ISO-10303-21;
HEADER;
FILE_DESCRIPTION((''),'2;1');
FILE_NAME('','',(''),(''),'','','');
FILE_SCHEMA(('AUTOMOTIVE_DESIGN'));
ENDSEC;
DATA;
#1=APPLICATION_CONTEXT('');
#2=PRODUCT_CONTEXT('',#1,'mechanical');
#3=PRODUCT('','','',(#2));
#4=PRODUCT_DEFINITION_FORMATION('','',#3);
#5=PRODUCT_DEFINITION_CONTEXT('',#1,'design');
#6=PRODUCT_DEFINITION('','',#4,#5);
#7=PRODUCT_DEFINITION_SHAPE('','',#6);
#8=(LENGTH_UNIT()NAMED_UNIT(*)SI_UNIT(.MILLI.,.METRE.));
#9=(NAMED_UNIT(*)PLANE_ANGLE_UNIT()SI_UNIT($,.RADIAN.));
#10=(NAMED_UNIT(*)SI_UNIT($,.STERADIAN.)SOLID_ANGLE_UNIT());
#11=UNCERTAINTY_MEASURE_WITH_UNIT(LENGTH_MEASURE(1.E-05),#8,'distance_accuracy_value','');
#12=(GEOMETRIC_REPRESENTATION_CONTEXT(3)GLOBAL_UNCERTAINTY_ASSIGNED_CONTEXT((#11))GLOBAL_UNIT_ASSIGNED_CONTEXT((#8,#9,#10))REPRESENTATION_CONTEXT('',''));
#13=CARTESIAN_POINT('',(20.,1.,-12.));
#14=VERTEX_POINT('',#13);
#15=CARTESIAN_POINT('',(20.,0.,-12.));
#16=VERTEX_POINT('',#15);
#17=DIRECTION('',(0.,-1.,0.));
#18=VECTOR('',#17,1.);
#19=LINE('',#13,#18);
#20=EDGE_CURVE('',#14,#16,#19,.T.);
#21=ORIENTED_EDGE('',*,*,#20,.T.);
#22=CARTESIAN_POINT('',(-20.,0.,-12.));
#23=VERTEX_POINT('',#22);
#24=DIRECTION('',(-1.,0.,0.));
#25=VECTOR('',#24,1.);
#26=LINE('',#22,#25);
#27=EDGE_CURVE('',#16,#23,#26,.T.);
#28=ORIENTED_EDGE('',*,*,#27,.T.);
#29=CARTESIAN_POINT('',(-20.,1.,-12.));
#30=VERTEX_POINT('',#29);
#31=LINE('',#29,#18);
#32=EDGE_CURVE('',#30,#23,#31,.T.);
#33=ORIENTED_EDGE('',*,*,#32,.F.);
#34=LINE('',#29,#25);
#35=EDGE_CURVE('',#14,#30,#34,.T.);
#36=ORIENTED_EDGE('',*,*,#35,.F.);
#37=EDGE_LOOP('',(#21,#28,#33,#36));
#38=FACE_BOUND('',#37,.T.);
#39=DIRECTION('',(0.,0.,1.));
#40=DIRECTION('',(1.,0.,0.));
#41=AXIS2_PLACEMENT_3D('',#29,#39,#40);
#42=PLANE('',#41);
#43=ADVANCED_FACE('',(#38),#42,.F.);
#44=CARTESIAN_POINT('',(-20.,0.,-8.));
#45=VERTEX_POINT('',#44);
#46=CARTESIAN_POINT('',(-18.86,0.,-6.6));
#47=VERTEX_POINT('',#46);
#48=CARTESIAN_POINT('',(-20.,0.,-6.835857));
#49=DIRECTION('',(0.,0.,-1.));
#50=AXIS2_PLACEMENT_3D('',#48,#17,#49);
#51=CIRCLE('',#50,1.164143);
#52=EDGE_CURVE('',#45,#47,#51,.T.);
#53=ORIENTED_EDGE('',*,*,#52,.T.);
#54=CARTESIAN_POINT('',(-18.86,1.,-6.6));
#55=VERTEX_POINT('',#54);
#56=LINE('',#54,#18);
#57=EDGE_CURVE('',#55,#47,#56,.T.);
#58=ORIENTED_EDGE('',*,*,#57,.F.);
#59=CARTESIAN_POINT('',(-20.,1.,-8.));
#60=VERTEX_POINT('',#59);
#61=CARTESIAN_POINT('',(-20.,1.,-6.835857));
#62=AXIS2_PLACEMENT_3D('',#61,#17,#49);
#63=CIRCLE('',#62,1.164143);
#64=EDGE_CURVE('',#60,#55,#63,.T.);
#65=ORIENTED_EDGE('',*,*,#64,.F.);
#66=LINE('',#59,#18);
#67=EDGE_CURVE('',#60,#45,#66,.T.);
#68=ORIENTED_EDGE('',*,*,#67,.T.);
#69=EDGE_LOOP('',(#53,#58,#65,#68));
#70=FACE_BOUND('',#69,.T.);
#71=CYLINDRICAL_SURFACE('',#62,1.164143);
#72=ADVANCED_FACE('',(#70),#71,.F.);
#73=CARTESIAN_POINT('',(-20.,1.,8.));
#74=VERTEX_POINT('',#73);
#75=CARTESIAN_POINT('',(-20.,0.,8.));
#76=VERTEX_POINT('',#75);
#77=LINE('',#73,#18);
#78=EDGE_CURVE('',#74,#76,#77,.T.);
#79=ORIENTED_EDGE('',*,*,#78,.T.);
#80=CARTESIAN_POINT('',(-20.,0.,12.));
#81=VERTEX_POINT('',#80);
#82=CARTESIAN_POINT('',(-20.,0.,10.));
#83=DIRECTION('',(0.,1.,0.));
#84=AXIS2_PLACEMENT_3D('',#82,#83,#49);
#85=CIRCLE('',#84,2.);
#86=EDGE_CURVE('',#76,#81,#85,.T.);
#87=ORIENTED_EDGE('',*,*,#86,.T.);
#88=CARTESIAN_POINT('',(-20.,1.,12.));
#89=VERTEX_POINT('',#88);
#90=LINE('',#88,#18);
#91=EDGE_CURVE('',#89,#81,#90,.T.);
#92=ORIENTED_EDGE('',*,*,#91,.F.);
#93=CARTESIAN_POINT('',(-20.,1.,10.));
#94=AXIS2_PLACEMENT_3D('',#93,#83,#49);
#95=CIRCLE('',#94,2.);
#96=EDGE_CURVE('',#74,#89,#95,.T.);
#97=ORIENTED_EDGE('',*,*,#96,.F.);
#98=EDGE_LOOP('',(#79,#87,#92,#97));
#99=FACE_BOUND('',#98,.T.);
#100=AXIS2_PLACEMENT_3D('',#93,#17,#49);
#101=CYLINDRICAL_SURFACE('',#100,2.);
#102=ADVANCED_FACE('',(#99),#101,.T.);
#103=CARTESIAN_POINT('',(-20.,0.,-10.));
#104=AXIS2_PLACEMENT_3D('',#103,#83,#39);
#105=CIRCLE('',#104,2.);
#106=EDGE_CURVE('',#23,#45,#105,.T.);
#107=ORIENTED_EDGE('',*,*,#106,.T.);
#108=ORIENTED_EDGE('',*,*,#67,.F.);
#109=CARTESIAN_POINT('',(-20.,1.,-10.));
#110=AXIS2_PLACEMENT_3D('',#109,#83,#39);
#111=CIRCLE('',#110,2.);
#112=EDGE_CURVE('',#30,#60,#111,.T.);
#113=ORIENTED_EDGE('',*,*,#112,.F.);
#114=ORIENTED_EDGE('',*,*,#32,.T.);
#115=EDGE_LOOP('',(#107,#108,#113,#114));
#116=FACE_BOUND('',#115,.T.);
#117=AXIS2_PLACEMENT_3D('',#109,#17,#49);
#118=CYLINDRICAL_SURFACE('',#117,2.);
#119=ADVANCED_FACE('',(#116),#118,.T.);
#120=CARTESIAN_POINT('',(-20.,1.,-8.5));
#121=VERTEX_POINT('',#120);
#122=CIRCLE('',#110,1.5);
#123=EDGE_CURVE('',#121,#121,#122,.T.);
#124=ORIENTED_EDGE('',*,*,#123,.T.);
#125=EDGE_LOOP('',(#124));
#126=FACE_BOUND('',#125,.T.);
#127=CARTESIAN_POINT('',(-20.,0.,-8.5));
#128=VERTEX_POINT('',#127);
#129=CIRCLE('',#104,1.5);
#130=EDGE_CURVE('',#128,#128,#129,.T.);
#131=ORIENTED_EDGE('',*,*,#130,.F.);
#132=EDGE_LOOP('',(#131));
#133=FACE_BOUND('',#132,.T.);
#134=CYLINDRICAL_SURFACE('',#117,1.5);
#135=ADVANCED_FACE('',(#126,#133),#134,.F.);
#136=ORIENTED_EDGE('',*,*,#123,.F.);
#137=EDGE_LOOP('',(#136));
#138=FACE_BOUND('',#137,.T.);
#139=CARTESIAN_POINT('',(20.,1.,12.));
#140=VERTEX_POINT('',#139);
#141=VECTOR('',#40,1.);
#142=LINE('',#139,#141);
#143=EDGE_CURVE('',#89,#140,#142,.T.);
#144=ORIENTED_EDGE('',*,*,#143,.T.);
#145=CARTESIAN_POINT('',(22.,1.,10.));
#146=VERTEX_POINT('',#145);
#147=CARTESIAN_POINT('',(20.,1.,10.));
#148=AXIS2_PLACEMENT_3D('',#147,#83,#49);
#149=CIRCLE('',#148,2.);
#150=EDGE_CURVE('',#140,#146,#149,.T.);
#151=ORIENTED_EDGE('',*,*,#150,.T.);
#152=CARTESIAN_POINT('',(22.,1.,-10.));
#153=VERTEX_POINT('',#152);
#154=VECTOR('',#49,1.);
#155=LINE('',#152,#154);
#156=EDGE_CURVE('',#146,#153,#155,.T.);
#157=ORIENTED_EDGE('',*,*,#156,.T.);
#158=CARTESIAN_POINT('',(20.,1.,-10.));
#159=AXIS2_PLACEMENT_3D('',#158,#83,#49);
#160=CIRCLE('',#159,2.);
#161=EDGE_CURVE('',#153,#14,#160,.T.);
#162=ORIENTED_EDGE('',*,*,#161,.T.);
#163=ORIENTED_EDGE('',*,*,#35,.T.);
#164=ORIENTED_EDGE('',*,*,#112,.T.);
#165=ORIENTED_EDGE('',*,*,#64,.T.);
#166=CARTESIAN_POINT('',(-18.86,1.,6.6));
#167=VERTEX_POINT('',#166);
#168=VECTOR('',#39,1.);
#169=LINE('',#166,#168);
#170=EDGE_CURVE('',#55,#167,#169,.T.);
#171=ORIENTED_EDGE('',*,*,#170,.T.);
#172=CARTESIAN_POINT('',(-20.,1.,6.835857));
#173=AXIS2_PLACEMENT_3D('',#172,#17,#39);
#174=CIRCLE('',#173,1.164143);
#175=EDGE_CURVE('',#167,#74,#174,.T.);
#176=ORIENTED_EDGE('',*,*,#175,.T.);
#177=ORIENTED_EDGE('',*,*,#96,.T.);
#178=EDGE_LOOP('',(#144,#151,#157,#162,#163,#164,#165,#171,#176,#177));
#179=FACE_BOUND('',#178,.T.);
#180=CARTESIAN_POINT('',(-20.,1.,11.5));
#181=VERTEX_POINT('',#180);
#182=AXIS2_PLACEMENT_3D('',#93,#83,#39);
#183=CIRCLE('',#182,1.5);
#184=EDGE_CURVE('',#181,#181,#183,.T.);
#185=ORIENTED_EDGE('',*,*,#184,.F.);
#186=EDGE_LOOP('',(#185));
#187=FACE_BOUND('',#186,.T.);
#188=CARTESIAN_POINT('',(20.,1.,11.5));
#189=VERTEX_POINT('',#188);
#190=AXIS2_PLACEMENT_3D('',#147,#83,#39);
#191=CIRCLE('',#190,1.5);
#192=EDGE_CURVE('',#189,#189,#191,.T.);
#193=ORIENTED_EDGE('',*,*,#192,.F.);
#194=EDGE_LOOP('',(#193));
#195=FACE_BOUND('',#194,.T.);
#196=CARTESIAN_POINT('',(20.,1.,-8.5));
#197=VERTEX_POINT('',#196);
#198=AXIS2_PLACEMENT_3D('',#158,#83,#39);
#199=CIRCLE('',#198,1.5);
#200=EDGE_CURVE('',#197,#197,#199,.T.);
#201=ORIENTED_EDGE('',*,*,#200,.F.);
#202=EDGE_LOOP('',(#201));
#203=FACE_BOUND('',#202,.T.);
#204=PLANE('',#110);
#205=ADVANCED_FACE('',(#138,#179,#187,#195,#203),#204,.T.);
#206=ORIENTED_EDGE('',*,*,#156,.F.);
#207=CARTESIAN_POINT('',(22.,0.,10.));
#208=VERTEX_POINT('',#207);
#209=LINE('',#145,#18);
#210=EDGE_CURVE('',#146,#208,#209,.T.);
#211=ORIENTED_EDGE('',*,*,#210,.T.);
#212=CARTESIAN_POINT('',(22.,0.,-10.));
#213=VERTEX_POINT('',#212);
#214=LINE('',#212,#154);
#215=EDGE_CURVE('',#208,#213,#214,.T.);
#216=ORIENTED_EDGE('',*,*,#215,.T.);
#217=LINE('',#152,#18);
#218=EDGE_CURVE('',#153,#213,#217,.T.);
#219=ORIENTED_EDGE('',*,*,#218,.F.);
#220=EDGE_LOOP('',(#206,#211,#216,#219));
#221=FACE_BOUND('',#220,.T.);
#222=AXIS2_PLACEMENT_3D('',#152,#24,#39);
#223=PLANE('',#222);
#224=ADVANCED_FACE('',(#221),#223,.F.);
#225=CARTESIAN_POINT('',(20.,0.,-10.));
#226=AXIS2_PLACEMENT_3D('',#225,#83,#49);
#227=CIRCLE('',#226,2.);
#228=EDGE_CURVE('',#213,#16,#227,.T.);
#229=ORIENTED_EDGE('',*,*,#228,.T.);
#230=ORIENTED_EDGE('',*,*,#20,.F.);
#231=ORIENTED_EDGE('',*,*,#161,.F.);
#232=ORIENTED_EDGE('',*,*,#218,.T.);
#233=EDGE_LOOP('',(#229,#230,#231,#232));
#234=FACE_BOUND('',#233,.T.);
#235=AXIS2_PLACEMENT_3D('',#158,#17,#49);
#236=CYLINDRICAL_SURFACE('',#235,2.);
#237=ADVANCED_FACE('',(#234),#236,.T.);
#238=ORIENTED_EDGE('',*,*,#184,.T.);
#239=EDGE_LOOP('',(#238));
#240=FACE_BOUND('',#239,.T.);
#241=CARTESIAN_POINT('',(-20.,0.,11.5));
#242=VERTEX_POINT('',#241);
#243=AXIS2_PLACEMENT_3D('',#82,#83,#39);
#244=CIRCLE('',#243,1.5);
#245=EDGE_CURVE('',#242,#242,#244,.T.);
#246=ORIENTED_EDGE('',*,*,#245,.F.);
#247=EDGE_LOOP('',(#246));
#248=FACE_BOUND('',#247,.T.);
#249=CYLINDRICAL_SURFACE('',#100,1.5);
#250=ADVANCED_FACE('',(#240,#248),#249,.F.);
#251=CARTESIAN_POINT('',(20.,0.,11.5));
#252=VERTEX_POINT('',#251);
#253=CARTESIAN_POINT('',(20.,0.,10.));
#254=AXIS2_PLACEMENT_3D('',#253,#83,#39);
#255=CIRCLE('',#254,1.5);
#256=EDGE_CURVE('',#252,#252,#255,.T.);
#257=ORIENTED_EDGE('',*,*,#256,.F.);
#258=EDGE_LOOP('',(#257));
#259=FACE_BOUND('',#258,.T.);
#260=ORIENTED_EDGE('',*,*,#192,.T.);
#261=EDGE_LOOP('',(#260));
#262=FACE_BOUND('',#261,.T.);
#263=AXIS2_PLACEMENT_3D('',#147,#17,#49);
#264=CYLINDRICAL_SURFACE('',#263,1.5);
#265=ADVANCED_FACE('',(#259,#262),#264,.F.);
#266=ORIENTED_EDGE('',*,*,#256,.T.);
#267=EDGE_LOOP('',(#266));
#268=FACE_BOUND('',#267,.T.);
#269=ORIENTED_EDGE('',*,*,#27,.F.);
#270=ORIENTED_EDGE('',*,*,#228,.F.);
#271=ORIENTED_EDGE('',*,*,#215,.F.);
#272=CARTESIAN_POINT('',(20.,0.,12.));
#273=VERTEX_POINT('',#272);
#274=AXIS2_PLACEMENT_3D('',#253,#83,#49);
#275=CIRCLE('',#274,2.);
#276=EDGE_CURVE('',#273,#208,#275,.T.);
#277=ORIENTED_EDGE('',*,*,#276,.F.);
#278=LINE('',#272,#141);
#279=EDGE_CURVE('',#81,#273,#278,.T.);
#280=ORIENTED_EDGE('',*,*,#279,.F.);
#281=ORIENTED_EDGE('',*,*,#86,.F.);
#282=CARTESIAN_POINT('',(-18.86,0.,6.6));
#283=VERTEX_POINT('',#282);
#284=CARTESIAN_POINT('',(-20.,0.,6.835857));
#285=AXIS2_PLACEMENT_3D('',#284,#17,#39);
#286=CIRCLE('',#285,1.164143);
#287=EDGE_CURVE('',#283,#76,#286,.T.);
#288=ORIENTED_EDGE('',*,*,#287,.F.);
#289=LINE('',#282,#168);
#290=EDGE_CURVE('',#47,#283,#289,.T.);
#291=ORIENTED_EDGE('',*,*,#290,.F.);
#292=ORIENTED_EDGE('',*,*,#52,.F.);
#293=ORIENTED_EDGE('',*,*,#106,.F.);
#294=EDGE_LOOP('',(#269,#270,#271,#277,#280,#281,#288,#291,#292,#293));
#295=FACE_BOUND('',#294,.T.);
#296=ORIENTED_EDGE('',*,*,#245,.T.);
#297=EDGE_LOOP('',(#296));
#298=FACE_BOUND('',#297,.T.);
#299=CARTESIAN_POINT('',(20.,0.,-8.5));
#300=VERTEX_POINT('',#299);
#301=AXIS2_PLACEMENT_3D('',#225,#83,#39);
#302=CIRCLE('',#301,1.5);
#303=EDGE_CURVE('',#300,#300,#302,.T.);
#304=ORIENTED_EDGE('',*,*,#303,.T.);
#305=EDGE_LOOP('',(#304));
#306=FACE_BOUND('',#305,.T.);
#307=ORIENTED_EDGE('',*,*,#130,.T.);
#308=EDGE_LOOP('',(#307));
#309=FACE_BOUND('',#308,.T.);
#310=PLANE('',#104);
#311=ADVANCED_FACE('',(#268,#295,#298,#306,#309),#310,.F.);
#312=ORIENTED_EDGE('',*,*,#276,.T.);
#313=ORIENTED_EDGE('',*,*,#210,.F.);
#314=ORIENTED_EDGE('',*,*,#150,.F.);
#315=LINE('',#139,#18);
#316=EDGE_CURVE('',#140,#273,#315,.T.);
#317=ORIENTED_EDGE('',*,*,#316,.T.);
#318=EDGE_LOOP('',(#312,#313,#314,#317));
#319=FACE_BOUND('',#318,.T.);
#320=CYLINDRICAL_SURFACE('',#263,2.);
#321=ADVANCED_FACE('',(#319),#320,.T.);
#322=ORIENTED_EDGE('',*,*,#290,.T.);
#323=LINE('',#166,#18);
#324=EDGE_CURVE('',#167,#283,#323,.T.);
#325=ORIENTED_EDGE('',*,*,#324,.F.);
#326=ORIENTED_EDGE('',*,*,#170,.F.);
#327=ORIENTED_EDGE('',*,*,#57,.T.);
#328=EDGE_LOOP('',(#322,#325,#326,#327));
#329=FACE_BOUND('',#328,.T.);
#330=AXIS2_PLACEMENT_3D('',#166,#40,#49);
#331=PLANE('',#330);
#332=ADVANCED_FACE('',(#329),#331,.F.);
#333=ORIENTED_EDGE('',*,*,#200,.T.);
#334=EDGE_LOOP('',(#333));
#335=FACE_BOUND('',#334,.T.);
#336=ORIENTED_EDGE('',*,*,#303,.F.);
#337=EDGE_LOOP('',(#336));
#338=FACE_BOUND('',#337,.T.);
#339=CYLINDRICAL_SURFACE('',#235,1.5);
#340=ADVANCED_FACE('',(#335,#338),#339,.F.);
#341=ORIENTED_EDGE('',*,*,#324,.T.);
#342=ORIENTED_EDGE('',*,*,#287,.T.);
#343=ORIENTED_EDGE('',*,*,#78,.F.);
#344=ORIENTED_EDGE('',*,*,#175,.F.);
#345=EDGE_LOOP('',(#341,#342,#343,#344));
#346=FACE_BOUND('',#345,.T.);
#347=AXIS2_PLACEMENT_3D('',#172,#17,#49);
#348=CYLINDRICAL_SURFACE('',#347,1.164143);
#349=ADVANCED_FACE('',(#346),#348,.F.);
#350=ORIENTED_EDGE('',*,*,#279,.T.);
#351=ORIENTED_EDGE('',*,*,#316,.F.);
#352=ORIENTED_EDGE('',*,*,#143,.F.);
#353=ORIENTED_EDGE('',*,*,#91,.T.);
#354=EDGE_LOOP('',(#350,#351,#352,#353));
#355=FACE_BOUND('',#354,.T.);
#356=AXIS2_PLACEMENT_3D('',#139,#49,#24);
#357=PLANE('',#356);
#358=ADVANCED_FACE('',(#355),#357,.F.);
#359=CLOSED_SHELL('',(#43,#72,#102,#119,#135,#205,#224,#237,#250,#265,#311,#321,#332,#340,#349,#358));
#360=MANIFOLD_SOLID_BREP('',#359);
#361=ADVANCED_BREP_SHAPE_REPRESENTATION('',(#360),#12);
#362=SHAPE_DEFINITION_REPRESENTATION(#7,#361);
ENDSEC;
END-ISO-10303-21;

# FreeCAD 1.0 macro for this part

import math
import FreeCAD as App
import Part
import Sketcher

V = App.Vector
Q = App.Units.Quantity

doc = App.newDocument("Part")
body = doc.addObject("PartDesign::Body", "Body")

sketch1 = body.newObject("Sketcher::SketchObject", "Sketch")
sketch1.AttachmentSupport = (doc.getObject("XZ_Plane"), [""])
sketch1.MapMode = "FlatFace"
sketch1.addGeometry([
    Part.LineSegment(V(20, -12, 0), V(-20, -12, 0)),
    Part.ArcOfCircle(Part.Circle(V(-20, -10, 0), V(0, 0, 1), 2), math.radians(90), math.radians(270)),
    Part.ArcOfCircle(Part.Circle(V(-20, -6.8, 0), V(0, 0, 1), 1.2), math.radians(-90), math.radians(12)),
    Part.LineSegment(V(-18.9, -6.6, 0), V(-18.9, 6.6, 0)),
    Part.ArcOfCircle(Part.Circle(V(-20, 6.8, 0), V(0, 0, 1), 1.2), math.radians(-12), math.radians(90)),
    Part.ArcOfCircle(Part.Circle(V(-20, 10, 0), V(0, 0, 1), 2), math.radians(90), math.radians(270)),
    Part.LineSegment(V(-20, 12, 0), V(20, 12, 0)),
    Part.ArcOfCircle(Part.Circle(V(20, 10, 0), V(0, 0, 1), 2), math.radians(0), math.radians(90)),
    Part.LineSegment(V(22, 10, 0), V(22, -10, 0)),
    Part.ArcOfCircle(Part.Circle(V(20, -10, 0), V(0, 0, 1), 2), math.radians(-90), math.radians(0)),
    Part.Circle(V(20, 10, 0), V(0, 0, 1), 1.5),
    Part.Circle(V(-20, 10, 0), V(0, 0, 1), 1.5),
    Part.Circle(V(20, -10, 0), V(0, 0, 1), 1.5),
    Part.Circle(V(-20, -10, 0), V(0, 0, 1), 1.5),
], False)
sketch1.addConstraint([
    Sketcher.Constraint("Tangent", 0, 2, 1, 2),
    Sketcher.Constraint("Tangent", 1, 1, 2, 1),
    Sketcher.Constraint("Coincident", 2, 2, 3, 1),
    Sketcher.Constraint("Coincident", 3, 2, 4, 1),
    Sketcher.Constraint("Tangent", 4, 2, 5, 2),
    Sketcher.Constraint("Tangent", 5, 1, 6, 1),
    Sketcher.Constraint("Tangent", 6, 2, 7, 2),
    Sketcher.Constraint("Tangent", 7, 1, 8, 1),
    Sketcher.Constraint("Tangent", 8, 2, 9, 2),
    Sketcher.Constraint("Tangent", 9, 1, 0, 1),
    Sketcher.Constraint("Horizontal", 0),
    Sketcher.Constraint("Vertical", 3),
    Sketcher.Constraint("Horizontal", 6),
    Sketcher.Constraint("Vertical", 8),
    Sketcher.Constraint("Coincident", 10, 3, 7, 3),
    Sketcher.Constraint("Coincident", 11, 3, 5, 3),
    Sketcher.Constraint("Coincident", 12, 3, 9, 3),
    Sketcher.Constraint("Coincident", 13, 3, 1, 3),
    Sketcher.Constraint("Equal", 2, 4),
    Sketcher.Constraint("Equal", 1, 5),
    Sketcher.Constraint("Equal", 5, 7),
    Sketcher.Constraint("Equal", 7, 9),
    Sketcher.Constraint("Equal", 10, 11),
    Sketcher.Constraint("Equal", 11, 12),
    Sketcher.Constraint("Equal", 12, 13),
    Sketcher.Constraint("Symmetric", 1, 3, 7, 3, -1, 1),
    Sketcher.Constraint("Vertical", 1, 3, 2, 3),
    Sketcher.Constraint("Vertical", 2, 3, 4, 3),
    Sketcher.Constraint("Vertical", 4, 3, 5, 3),
    Sketcher.Constraint("Diameter", 10, Q("3 mm")),
    Sketcher.Constraint("Radius", 1, Q("2 mm")),
    Sketcher.Constraint("DistanceX", 0, 2, 0, 1, Q("40 mm")),
    Sketcher.Constraint("DistanceY", 8, 2, 8, 1, Q("20 mm")),
    Sketcher.Constraint("DistanceY", 3, 1, 3, 2, Q("13.2 mm")),
    Sketcher.Constraint("DistanceX", 2, 2, -1, 1, Q("18.86 mm")),
])
pad1 = body.newObject("PartDesign::Pad", "Pad")
pad1.Profile = sketch1
pad1.Length = 1
pad1.Reversed = True

doc.recompute()
